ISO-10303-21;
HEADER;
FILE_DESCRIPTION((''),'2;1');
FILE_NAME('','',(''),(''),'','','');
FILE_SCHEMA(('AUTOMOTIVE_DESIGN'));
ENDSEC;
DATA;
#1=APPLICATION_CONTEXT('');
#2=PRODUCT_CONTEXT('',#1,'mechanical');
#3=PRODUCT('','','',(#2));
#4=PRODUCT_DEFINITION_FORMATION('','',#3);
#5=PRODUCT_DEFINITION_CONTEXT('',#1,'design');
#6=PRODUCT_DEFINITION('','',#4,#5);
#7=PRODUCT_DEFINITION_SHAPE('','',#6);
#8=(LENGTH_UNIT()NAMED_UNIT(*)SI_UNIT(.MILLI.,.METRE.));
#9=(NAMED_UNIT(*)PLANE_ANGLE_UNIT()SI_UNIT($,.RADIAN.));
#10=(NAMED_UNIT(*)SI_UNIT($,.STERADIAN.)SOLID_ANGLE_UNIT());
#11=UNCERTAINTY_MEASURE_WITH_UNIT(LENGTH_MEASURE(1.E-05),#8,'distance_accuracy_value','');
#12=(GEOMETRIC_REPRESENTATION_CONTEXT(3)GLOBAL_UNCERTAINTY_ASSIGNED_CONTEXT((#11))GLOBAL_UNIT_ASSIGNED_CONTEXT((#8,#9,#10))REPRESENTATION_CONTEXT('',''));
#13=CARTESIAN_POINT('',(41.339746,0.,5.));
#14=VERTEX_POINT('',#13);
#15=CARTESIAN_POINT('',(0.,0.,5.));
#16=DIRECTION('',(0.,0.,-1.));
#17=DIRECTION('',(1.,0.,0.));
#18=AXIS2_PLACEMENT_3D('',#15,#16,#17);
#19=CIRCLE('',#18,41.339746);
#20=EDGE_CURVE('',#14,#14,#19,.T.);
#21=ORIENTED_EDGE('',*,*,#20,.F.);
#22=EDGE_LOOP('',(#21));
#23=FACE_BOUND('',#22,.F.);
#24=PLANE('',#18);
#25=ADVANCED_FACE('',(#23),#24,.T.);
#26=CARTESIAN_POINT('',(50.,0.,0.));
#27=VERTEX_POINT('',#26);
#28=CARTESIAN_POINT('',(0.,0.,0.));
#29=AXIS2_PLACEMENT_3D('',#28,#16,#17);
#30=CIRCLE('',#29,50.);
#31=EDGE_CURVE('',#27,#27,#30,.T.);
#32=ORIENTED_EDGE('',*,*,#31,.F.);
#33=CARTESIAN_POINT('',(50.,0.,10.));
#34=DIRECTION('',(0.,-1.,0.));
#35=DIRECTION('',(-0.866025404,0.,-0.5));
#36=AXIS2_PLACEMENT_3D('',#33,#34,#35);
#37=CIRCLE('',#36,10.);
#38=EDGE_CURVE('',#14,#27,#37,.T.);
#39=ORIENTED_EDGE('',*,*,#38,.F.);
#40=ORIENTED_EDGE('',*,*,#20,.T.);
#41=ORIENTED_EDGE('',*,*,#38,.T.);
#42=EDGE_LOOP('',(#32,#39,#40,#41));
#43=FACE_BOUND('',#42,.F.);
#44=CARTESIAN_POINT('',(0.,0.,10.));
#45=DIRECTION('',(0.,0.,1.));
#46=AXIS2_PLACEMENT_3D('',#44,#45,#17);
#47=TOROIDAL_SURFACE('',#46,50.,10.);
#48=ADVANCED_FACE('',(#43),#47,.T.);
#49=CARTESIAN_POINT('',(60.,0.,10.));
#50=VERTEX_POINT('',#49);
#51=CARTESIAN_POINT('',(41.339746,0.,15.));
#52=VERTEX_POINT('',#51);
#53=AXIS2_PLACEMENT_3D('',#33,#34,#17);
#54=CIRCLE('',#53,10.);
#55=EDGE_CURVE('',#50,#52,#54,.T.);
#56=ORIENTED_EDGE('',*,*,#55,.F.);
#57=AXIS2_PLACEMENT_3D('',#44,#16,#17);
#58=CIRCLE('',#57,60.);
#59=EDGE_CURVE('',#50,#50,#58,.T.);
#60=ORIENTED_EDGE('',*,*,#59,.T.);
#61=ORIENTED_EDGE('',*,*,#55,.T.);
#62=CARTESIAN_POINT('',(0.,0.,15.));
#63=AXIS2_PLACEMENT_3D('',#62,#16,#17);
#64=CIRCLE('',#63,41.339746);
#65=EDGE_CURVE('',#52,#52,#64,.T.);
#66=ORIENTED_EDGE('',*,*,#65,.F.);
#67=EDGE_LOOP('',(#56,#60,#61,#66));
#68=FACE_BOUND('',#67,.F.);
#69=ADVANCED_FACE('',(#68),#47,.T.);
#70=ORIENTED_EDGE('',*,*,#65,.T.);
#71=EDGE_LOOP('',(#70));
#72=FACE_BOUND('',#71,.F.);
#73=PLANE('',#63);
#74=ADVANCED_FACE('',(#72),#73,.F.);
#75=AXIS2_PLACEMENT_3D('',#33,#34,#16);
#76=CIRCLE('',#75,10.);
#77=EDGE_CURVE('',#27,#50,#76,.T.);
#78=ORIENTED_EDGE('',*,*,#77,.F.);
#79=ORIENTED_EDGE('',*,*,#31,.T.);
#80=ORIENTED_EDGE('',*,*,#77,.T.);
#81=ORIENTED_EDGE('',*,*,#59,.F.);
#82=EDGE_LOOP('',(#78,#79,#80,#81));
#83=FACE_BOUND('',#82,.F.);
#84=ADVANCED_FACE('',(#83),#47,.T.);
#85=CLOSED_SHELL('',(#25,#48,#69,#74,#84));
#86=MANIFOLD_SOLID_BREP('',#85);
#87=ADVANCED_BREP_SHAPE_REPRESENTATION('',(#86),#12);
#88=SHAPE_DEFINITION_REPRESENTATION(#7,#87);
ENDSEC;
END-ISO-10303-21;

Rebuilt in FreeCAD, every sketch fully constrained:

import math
import FreeCAD as App
import Part
import Sketcher

V = App.Vector

doc = App.newDocument("Part")
body = doc.addObject("PartDesign::Body", "Body")

# Sketch on XZ plane
sketch1 = body.newObject("Sketcher::SketchObject", "Sketch")
sketch1.AttachmentSupport = (doc.getObject("XZ_Plane"), [""])
sketch1.MapMode = "FlatFace"
sketch1.addGeometry(Part.LineSegment(V(0, 5, 0), V(41.339746, 5, 0)), False)
sketch1.addGeometry(Part.ArcOfCircle(Part.Circle(V(50, 10, 0), V(0, 0, 1), 10), math.radians(-150), math.radians(-90)), False)
sketch1.addGeometry(Part.ArcOfCircle(Part.Circle(V(50, 10, 0), V(0, 0, 1), 10), math.radians(-90), math.radians(0)), False)
sketch1.addGeometry(Part.ArcOfCircle(Part.Circle(V(50, 10, 0), V(0, 0, 1), 10), math.radians(0), math.radians(150)), False)
sketch1.addGeometry(Part.LineSegment(V(41.339746, 15, 0), V(0, 15, 0)), False)
sketch1.addGeometry(Part.LineSegment(V(0, 15, 0), V(0, 5, 0)), False)
sketch1.addConstraint(Sketcher.Constraint("Coincident", 0, 2, 1, 1))
sketch1.addConstraint(Sketcher.Constraint("Tangent", 1, 2, 2, 1))
sketch1.addConstraint(Sketcher.Constraint("Tangent", 2, 2, 3, 1))
sketch1.addConstraint(Sketcher.Constraint("Coincident", 3, 2, 4, 1))
sketch1.addConstraint(Sketcher.Constraint("Coincident", 4, 2, 5, 1))
sketch1.addConstraint(Sketcher.Constraint("Coincident", 5, 2, 0, 1))
sketch1.addConstraint(Sketcher.Constraint("Horizontal", 0))
sketch1.addConstraint(Sketcher.Constraint("Horizontal", 4))
sketch1.addConstraint(Sketcher.Constraint("Vertical", 5))
sketch1.addConstraint(Sketcher.Constraint("Coincident", 3, 3, 1, 3))
sketch1.addConstraint(Sketcher.Constraint("PointOnObject", 1, 2, -1))
sketch1.addConstraint(Sketcher.Constraint("PointOnObject", 4, 2, -2))
sketch1.addConstraint(Sketcher.Constraint("Horizontal", 3, 3, 2, 2))
sketch1.addConstraint(Sketcher.Constraint("Vertical", 3, 3, 1, 2))
sketch1.addConstraint(Sketcher.Constraint("Vertical", 0, 2, 3, 2))
sketch1.addConstraint(Sketcher.Constraint("Radius", 1, 10.0))
sketch1.addConstraint(Sketcher.Constraint("DistanceY", 5, 2, 5, 1, 10.0))
sketch1.addConstraint(Sketcher.Constraint("DistanceX", -1, 1, 1, 3, 50.0))
revolution = body.newObject("PartDesign::Revolution", "Revolution")
revolution.Profile = sketch1
revolution.ReferenceAxis = (sketch1, ["V_Axis"])
revolution.Angle = 360

doc.recompute()
